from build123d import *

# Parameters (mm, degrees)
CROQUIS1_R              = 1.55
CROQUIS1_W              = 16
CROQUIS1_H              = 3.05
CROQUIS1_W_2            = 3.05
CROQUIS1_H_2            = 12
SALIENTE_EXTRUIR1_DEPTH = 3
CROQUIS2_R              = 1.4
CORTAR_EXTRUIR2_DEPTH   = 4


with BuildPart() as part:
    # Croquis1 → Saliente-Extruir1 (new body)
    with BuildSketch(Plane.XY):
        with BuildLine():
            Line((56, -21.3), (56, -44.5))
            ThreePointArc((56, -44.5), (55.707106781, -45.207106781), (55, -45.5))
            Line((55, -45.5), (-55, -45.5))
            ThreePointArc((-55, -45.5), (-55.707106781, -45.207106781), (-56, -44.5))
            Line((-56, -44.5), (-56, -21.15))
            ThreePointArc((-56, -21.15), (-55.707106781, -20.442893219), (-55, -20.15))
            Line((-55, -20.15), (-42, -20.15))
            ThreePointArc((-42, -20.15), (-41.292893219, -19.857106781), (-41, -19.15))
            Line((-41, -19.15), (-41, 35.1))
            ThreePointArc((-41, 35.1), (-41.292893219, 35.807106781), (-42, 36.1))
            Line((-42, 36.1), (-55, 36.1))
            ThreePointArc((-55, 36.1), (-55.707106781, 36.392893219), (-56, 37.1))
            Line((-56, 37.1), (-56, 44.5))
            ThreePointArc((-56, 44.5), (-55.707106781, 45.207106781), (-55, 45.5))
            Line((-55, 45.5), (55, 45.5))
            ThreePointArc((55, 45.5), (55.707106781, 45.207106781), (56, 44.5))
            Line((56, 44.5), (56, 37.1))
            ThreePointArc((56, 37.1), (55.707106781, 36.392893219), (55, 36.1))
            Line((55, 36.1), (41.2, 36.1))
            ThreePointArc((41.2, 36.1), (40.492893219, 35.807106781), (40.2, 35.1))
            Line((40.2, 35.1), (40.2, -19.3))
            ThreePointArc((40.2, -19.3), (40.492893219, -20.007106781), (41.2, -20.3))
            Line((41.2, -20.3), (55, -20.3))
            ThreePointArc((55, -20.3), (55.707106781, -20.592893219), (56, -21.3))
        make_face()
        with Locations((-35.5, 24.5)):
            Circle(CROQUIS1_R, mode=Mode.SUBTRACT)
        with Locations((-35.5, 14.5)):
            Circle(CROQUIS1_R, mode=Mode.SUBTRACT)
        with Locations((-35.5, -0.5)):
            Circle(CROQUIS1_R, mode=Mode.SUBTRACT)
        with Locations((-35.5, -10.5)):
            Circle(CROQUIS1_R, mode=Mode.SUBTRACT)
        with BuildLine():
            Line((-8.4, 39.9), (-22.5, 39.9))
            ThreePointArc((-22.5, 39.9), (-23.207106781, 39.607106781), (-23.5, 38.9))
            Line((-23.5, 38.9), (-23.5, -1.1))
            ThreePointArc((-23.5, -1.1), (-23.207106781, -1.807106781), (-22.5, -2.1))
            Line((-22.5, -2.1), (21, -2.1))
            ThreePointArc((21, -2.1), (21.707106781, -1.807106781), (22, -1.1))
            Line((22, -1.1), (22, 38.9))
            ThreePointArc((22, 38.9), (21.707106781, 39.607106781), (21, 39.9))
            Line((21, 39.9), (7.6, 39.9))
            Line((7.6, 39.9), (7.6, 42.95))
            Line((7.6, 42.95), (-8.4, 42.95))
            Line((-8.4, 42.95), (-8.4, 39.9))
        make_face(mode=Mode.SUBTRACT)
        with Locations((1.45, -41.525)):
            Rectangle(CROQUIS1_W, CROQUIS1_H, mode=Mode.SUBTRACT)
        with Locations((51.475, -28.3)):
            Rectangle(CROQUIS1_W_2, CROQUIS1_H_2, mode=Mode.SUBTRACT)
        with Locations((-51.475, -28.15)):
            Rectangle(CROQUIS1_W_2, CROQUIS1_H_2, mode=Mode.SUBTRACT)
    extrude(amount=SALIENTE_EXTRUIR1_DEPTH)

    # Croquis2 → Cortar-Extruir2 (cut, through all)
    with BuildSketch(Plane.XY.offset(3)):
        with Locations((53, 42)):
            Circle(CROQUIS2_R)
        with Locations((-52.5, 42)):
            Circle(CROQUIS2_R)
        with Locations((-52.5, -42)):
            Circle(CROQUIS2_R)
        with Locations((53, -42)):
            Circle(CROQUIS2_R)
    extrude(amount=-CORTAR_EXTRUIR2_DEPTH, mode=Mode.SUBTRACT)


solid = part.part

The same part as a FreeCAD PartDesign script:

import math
import FreeCAD as App
import Part
import Sketcher


def add_polygon(sketch, points):
    """Adds a closed chain of lines whose ends are joined by coincident constraints."""
    first, n = sketch.GeometryCount, len(points)
    for a, b in zip(points, points[1:] + points[:1]):
        sketch.addGeometry(Part.LineSegment(App.Vector(*a, 0), App.Vector(*b, 0)), False)
    for i in range(n):
        sketch.addConstraint(Sketcher.Constraint("Coincident", first + i, 2, first + (i + 1) % n, 1))

doc = App.newDocument("Part")
body = doc.addObject("PartDesign::Body", "Body")

sketch1 = body.newObject("Sketcher::SketchObject", "Sketch")
sketch1.AttachmentSupport = (doc.getObject("XY_Plane"), [""])
sketch1.MapMode = "FlatFace"
sketch1.addGeometry(Part.LineSegment(App.Vector(56, -44.5, 0), App.Vector(56, -21.3, 0)), False)
sketch1.addGeometry(Part.ArcOfCircle(Part.Circle(App.Vector(55, -21.3, 0), App.Vector(0, 0, 1), 1), math.radians(0), math.radians(90)), False)
sketch1.addGeometry(Part.LineSegment(App.Vector(55, -20.3, 0), App.Vector(41.2, -20.3, 0)), False)
sketch1.addGeometry(Part.ArcOfCircle(Part.Circle(App.Vector(41.2, -19.3, 0), App.Vector(0, 0, 1), 1), math.radians(-180), math.radians(-90)), False)
sketch1.addGeometry(Part.LineSegment(App.Vector(40.2, -19.3, 0), App.Vector(40.2, 35.1, 0)), False)
sketch1.addGeometry(Part.ArcOfCircle(Part.Circle(App.Vector(41.2, 35.1, 0), App.Vector(0, 0, 1), 1), math.radians(90), math.radians(180)), False)
sketch1.addGeometry(Part.LineSegment(App.Vector(41.2, 36.1, 0), App.Vector(55, 36.1, 0)), False)
sketch1.addGeometry(Part.ArcOfCircle(Part.Circle(App.Vector(55, 37.1, 0), App.Vector(0, 0, 1), 1), math.radians(-90), math.radians(0)), False)
sketch1.addGeometry(Part.LineSegment(App.Vector(56, 37.1, 0), App.Vector(56, 44.5, 0)), False)
sketch1.addGeometry(Part.ArcOfCircle(Part.Circle(App.Vector(55, 44.5, 0), App.Vector(0, 0, 1), 1), math.radians(0), math.radians(90)), False)
sketch1.addGeometry(Part.LineSegment(App.Vector(55, 45.5, 0), App.Vector(-55, 45.5, 0)), False)
sketch1.addGeometry(Part.ArcOfCircle(Part.Circle(App.Vector(-55, 44.5, 0), App.Vector(0, 0, 1), 1), math.radians(90), math.radians(180)), False)
sketch1.addGeometry(Part.LineSegment(App.Vector(-56, 44.5, 0), App.Vector(-56, 37.1, 0)), False)
sketch1.addGeometry(Part.ArcOfCircle(Part.Circle(App.Vector(-55, 37.1, 0), App.Vector(0, 0, 1), 1), math.radians(-180), math.radians(-90)), False)
sketch1.addGeometry(Part.LineSegment(App.Vector(-55, 36.1, 0), App.Vector(-42, 36.1, 0)), False)
sketch1.addGeometry(Part.ArcOfCircle(Part.Circle(App.Vector(-42, 35.1, 0), App.Vector(0, 0, 1), 1), math.radians(0), math.radians(90)), False)
sketch1.addGeometry(Part.LineSegment(App.Vector(-41, 35.1, 0), App.Vector(-41, -19.1, 0)), False)
sketch1.addGeometry(Part.ArcOfCircle(Part.Circle(App.Vector(-42, -19.1, 0), App.Vector(0, 0, 1), 1), math.radians(-90), math.radians(0)), False)
sketch1.addGeometry(Part.LineSegment(App.Vector(-42, -20.1, 0), App.Vector(-55, -20.1, 0)), False)
sketch1.addGeometry(Part.ArcOfCircle(Part.Circle(App.Vector(-55, -21.2, 0), App.Vector(0, 0, 1), 1), math.radians(90), math.radians(180)), False)
sketch1.addGeometry(Part.LineSegment(App.Vector(-56, -21.1, 0), App.Vector(-56, -44.5, 0)), False)
sketch1.addGeometry(Part.ArcOfCircle(Part.Circle(App.Vector(-55, -44.5, 0), App.Vector(0, 0, 1), 1), math.radians(-180), math.radians(-90)), False)
sketch1.addGeometry(Part.LineSegment(App.Vector(-55, -45.5, 0), App.Vector(55, -45.5, 0)), False)
sketch1.addGeometry(Part.ArcOfCircle(Part.Circle(App.Vector(55, -44.5, 0), App.Vector(0, 0, 1), 1), math.radians(-90), math.radians(0)), False)
add_polygon(sketch1, [(50, -34.3), (50, -22.3), (53, -22.3), (53, -34.3)])
add_polygon(sketch1, [(-6.5, -43), (-6.5, -40), (9.4, -40), (9.4, -43)])
add_polygon(sketch1, [(-53, -34.1), (-53, -22.1), (-50, -22.1), (-50, -34.1)])
sketch1.addGeometry(Part.Circle(App.Vector(-35.5, -10.5, 0), App.Vector(0, 0, 1), 1.6), False)
sketch1.addGeometry(Part.Circle(App.Vector(-35.5, -0.5, 0), App.Vector(0, 0, 1), 1.6), False)
sketch1.addGeometry(Part.LineSegment(App.Vector(-8.4, 39.9, 0), App.Vector(-8.4, 43, 0)), False)
sketch1.addGeometry(Part.LineSegment(App.Vector(-8.4, 43, 0), App.Vector(7.6, 43, 0)), False)
sketch1.addGeometry(Part.LineSegment(App.Vector(7.6, 43, 0), App.Vector(7.6, 39.9, 0)), False)
sketch1.addGeometry(Part.LineSegment(App.Vector(7.6, 39.9, 0), App.Vector(21, 39.9, 0)), False)
sketch1.addGeometry(Part.ArcOfCircle(Part.Circle(App.Vector(21, 38.9, 0), App.Vector(0, 0, 1), 1), math.radians(0), math.radians(90)), False)
sketch1.addGeometry(Part.LineSegment(App.Vector(22, 38.9, 0), App.Vector(22, -1.1, 0)), False)
sketch1.addGeometry(Part.ArcOfCircle(Part.Circle(App.Vector(21, -1.1, 0), App.Vector(0, 0, 1), 1), math.radians(-90), math.radians(0)), False)
sketch1.addGeometry(Part.LineSegment(App.Vector(21, -2.1, 0), App.Vector(-22.5, -2.1, 0)), False)
sketch1.addGeometry(Part.ArcOfCircle(Part.Circle(App.Vector(-22.5, -1.1, 0), App.Vector(0, 0, 1), 1), math.radians(-180), math.radians(-90)), False)
sketch1.addGeometry(Part.LineSegment(App.Vector(-23.5, -1.1, 0), App.Vector(-23.5, 38.9, 0)), False)
sketch1.addGeometry(Part.ArcOfCircle(Part.Circle(App.Vector(-22.5, 38.9, 0), App.Vector(0, 0, 1), 1), math.radians(90), math.radians(180)), False)
sketch1.addGeometry(Part.LineSegment(App.Vector(-22.5, 39.9, 0), App.Vector(-8.4, 39.9, 0)), False)
sketch1.addGeometry(Part.Circle(App.Vector(-35.5, 14.5, 0), App.Vector(0, 0, 1), 1.6), False)
sketch1.addGeometry(Part.Circle(App.Vector(-35.5, 24.5, 0), App.Vector(0, 0, 1), 1.6), False)
sketch1.addConstraint([
    Sketcher.Constraint("Tangent", 0, 2, 1, 1),
    Sketcher.Constraint("Tangent", 1, 2, 2, 1),
    Sketcher.Constraint("Tangent", 2, 2, 3, 2),
    Sketcher.Constraint("Tangent", 3, 1, 4, 1),
    Sketcher.Constraint("Tangent", 4, 2, 5, 2),
    Sketcher.Constraint("Tangent", 5, 1, 6, 1),
    Sketcher.Constraint("Tangent", 6, 2, 7, 1),
    Sketcher.Constraint("Tangent", 7, 2, 8, 1),
    Sketcher.Constraint("Tangent", 8, 2, 9, 1),
    Sketcher.Constraint("Tangent", 9, 2, 10, 1),
    Sketcher.Constraint("Tangent", 10, 2, 11, 1),
    Sketcher.Constraint("Tangent", 11, 2, 12, 1),
    Sketcher.Constraint("Tangent", 12, 2, 13, 1),
    Sketcher.Constraint("Tangent", 13, 2, 14, 1),
    Sketcher.Constraint("Tangent", 14, 2, 15, 2),
    Sketcher.Constraint("Tangent", 15, 1, 16, 1),
    Sketcher.Constraint("Tangent", 16, 2, 17, 2),
    Sketcher.Constraint("Tangent", 17, 1, 18, 1),
    Sketcher.Constraint("Tangent", 18, 2, 19, 1),
    Sketcher.Constraint("Tangent", 19, 2, 20, 1),
    Sketcher.Constraint("Tangent", 20, 2, 21, 1),
    Sketcher.Constraint("Tangent", 21, 2, 22, 1),
    Sketcher.Constraint("Tangent", 22, 2, 23, 1),
    Sketcher.Constraint("Tangent", 23, 2, 0, 1),
    Sketcher.Constraint("Coincident", 38, 2, 39, 1),
    Sketcher.Constraint("Coincident", 39, 2, 40, 1),
    Sketcher.Constraint("Coincident", 40, 2, 41, 1),
    Sketcher.Constraint("Tangent", 41, 2, 42, 2),
    Sketcher.Constraint("Tangent", 42, 1, 43, 1),
    Sketcher.Constraint("Tangent", 43, 2, 44, 2),
    Sketcher.Constraint("Tangent", 44, 1, 45, 1),
    Sketcher.Constraint("Tangent", 45, 2, 46, 2),
    Sketcher.Constraint("Tangent", 46, 1, 47, 1),
    Sketcher.Constraint("Tangent", 47, 2, 48, 2),
    Sketcher.Constraint("Tangent", 48, 1, 49, 1),
    Sketcher.Constraint("Coincident", 49, 2, 38, 1),
    Sketcher.Constraint("Vertical", 0),
    Sketcher.Constraint("Horizontal", 2),
    Sketcher.Constraint("Vertical", 4),
    Sketcher.Constraint("Horizontal", 6),
    Sketcher.Constraint("Vertical", 8),
    Sketcher.Constraint("Horizontal", 10),
    Sketcher.Constraint("Vertical", 12),
    Sketcher.Constraint("Horizontal", 14),
    Sketcher.Constraint("Vertical", 16),
    Sketcher.Constraint("Horizontal", 18),
    Sketcher.Constraint("Vertical", 20),
    Sketcher.Constraint("Horizontal", 22),
    Sketcher.Constraint("Vertical", 24),
    Sketcher.Constraint("Horizontal", 25),
    Sketcher.Constraint("Vertical", 26),
    Sketcher.Constraint("Horizontal", 27),
    Sketcher.Constraint("Vertical", 28),
    Sketcher.Constraint("Horizontal", 29),
    Sketcher.Constraint("Vertical", 30),
    Sketcher.Constraint("Horizontal", 31),
    Sketcher.Constraint("Vertical", 32),
    Sketcher.Constraint("Horizontal", 33),
    Sketcher.Constraint("Vertical", 34),
    Sketcher.Constraint("Horizontal", 35),
    Sketcher.Constraint("Vertical", 38),
    Sketcher.Constraint("Horizontal", 39),
    Sketcher.Constraint("Vertical", 40),
    Sketcher.Constraint("Horizontal", 41),
    Sketcher.Constraint("Vertical", 43),
    Sketcher.Constraint("Horizontal", 45),
    Sketcher.Constraint("Vertical", 47),
    Sketcher.Constraint("Horizontal", 49),
    Sketcher.Constraint("Equal", 1, 3),
    Sketcher.Constraint("Equal", 3, 5),
    Sketcher.Constraint("Equal", 5, 7),
    Sketcher.Constraint("Equal", 7, 9),
    Sketcher.Constraint("Equal", 9, 11),
    Sketcher.Constraint("Equal", 11, 13),
    Sketcher.Constraint("Equal", 13, 15),
    Sketcher.Constraint("Equal", 15, 17),
    Sketcher.Constraint("Equal", 17, 19),
    Sketcher.Constraint("Equal", 19, 21),
    Sketcher.Constraint("Equal", 21, 23),
    Sketcher.Constraint("Equal", 36, 37),
    Sketcher.Constraint("Equal", 23, 42),
    Sketcher.Constraint("Equal", 42, 44),
    Sketcher.Constraint("Equal", 44, 46),
    Sketcher.Constraint("Equal", 46, 48),
    Sketcher.Constraint("Equal", 37, 50),
    Sketcher.Constraint("Equal", 50, 51),
    Sketcher.Constraint("Symmetric", 9, 3, 21, 3, -1, 1),
    Sketcher.Constraint("Symmetric", 7, 3, 13, 3, -2),
    Sketcher.Constraint("Horizontal", 42, 3, 48, 3),
    Sketcher.Constraint("Vertical", 1, 3, 7, 3),
    Sketcher.Constraint("Vertical", 36, 3, 37, 3),
    Sketcher.Constraint("Vertical", 37, 3, 50, 3),
    Sketcher.Constraint("Vertical", 50, 3, 51, 3),
    Sketcher.Constraint("Equal", 27, 33),
    Sketcher.Constraint("Equal", 31, 39),
    Sketcher.Constraint("Equal", 35, 28),
    Sketcher.Constraint("Equal", 26, 32),
    Sketcher.Constraint("Equal", 30, 38),
    Sketcher.Constraint("Radius", 1, 1.0),
    Sketcher.Constraint("Diameter", 36, 3.1),
    Sketcher.Constraint("DistanceX", 10, 2, 10, 1, 110.0),
    Sketcher.Constraint("DistanceX", 14, 1, 14, 2, 13.0),
    Sketcher.Constraint("DistanceX", 29, 1, 29, 2, 16.0),
    Sketcher.Constraint("DistanceY", 24, 1, 24, 2, 12.0),
    Sketcher.Constraint("DistanceY", 43, 2, 43, 1, 40.0),
    Sketcher.Constraint("DistanceX", 2, 2, 2, 1, 13.8),
    Sketcher.Constraint("DistanceX", 41, 1, 41, 2, 13.4),
    Sketcher.Constraint("DistanceX", 45, 2, 45, 1, 43.5),
    Sketcher.Constraint("DistanceY", 0, 1, 0, 2, 23.2),
    Sketcher.Constraint("DistanceY", 4, 1, 4, 2, 54.4),
    Sketcher.Constraint("DistanceY", 8, 1, 8, 2, 7.4),
    Sketcher.Constraint("DistanceX", -1, 1, 42, 3, 21.0),
    Sketcher.Constraint("DistanceX", -1, 1, 25, 2, 53.0),
    Sketcher.Constraint("DistanceY", 28, 2, -1, 1, 40.0),
    Sketcher.Constraint("DistanceX", 32, 2, -1, 1, 53.0),
    Sketcher.Constraint("DistanceX", 25, 1, 25, 2, 3.05),
    Sketcher.Constraint("DistanceY", 16, 2, 16, 1, 54.25),
    Sketcher.Constraint("DistanceX", 36, 3, -1, 1, 35.5),
    Sketcher.Constraint("DistanceY", 36, 3, -1, 1, 10.5),
    Sketcher.Constraint("DistanceY", 37, 3, -1, 1, 0.5),
    Sketcher.Constraint("DistanceY", -1, 1, 42, 3, 38.9),
    Sketcher.Constraint("DistanceY", -1, 1, 50, 3, 14.5),
    Sketcher.Constraint("DistanceY", -1, 1, 51, 3, 24.5),
    Sketcher.Constraint("DistanceY", 24, 2, -1, 1, 22.3),
    Sketcher.Constraint("DistanceX", 28, 2, -1, 1, 6.55),
    Sketcher.Constraint("DistanceY", 32, 2, -1, 1, 22.15),
])
pad1 = body.newObject("PartDesign::Pad", "Pad")
pad1.Profile = sketch1
pad1.Length = 3

sketch2 = body.newObject("Sketcher::SketchObject", "Sketch001")
sketch2.AttachmentSupport = (doc.getObject("XY_Plane"), [""])
sketch2.MapMode = "FlatFace"
sketch2.AttachmentOffset = App.Placement(App.Vector(0, 0, 3), App.Rotation())
sketch2.addGeometry([
    Part.Circle(App.Vector(53, 42, 0), App.Vector(0, 0, 1), 1.4),
    Part.Circle(App.Vector(-52.5, 42, 0), App.Vector(0, 0, 1), 1.4),
    Part.Circle(App.Vector(-52.5, -42, 0), App.Vector(0, 0, 1), 1.4),
    Part.Circle(App.Vector(53, -42, 0), App.Vector(0, 0, 1), 1.4),
], False)
sketch2.addConstraint([
    Sketcher.Constraint("Equal", 0, 1),
    Sketcher.Constraint("Equal", 1, 2),
    Sketcher.Constraint("Equal", 2, 3),
    Sketcher.Constraint("Symmetric", 1, 3, 2, 3, -1),
    Sketcher.Constraint("Symmetric", 0, 3, 3, 3, -1),
    Sketcher.Constraint("Horizontal", 0, 3, 1, 3),
    Sketcher.Constraint("Diameter", 0, 2.8),
    Sketcher.Constraint("DistanceX", -1, 1, 0, 3, 53.0),
    Sketcher.Constraint("DistanceY", -1, 1, 0, 3, 42.0),
    Sketcher.Constraint("DistanceX", 1, 3, -1, 1, 52.5),
])
pocket1 = body.newObject("PartDesign::Pocket", "Pocket")
pocket1.Profile = sketch2
pocket1.Type = "ThroughAll"

doc.recompute()
